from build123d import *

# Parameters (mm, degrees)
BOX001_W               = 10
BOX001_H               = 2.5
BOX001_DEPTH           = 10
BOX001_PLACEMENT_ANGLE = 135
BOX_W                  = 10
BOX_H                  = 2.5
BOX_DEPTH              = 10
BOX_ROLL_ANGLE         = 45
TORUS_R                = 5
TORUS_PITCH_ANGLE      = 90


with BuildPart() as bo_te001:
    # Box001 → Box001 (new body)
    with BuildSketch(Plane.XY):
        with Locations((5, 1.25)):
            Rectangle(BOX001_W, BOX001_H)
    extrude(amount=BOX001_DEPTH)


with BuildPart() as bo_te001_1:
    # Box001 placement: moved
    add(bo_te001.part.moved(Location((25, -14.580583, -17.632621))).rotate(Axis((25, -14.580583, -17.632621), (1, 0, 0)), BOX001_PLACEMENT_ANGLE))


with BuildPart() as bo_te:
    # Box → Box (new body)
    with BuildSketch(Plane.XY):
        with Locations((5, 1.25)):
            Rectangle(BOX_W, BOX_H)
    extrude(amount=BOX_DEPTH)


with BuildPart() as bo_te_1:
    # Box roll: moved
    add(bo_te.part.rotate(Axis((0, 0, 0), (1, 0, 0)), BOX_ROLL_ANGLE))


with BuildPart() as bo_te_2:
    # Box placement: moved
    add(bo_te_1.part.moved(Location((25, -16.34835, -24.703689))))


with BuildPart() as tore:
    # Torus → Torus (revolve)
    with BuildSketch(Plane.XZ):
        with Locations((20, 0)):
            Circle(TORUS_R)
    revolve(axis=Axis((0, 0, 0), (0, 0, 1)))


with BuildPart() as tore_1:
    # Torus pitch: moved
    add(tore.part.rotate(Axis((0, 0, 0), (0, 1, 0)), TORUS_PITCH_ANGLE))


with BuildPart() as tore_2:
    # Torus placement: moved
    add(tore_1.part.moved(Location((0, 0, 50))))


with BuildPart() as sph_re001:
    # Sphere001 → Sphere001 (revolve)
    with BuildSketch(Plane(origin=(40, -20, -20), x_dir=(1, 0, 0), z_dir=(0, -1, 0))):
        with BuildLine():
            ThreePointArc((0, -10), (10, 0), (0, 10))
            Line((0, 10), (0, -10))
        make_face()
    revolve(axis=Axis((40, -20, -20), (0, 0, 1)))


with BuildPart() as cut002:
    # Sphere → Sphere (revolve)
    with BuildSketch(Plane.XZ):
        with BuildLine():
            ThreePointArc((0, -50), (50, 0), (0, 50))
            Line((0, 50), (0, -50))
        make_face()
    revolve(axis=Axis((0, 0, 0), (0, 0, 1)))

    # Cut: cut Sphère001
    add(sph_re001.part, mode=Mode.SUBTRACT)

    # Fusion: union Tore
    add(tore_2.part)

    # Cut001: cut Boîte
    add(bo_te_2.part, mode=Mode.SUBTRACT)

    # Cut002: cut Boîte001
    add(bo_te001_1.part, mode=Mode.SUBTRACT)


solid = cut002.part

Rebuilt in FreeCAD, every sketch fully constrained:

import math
import FreeCAD as App
import Part
import Sketcher
from FreeCAD import Vector
Q = App.Units.Quantity


def add_polygon(sketch, points):
    """Adds a closed chain of lines whose ends are joined by coincident constraints."""
    first, n = sketch.GeometryCount, len(points)
    for a, b in zip(points, points[1:] + points[:1]):
        sketch.addGeometry(Part.LineSegment(App.Vector(*a, 0), App.Vector(*b, 0)), False)
    for i in range(n):
        sketch.addConstraint(Sketcher.Constraint("Coincident", first + i, 2, first + (i + 1) % n, 1))

doc = App.newDocument("Part")
body = doc.addObject("PartDesign::Body", "Body")

# Sketch on XY plane
sketch1 = body.newObject("Sketcher::SketchObject", "Sketch")
sketch1.AttachmentSupport = (doc.getObject("XY_Plane"), [""])
sketch1.MapMode = "FlatFace"
add_polygon(sketch1, [(0, 2.5), (0, 0), (10, 0), (10, 2.5)])  # lines 0-3
sketch1.addConstraint([
    Sketcher.Constraint("Vertical", 0),
    Sketcher.Constraint("Horizontal", 1),
    Sketcher.Constraint("Vertical", 2),
    Sketcher.Constraint("Horizontal", 3),
    Sketcher.Constraint("Coincident", 0, 2, -1, 1),
    Sketcher.Constraint("DistanceX", 1, 1, 1, 2, Q("10 mm")),
    Sketcher.Constraint("DistanceY", 0, 2, 0, 1, Q("2.5 mm")),
])
pad1 = body.newObject("PartDesign::Pad", "Pad")
pad1.Profile = sketch1
pad1.Length = 10
body2 = doc.addObject("PartDesign::Body", "Body001")
doc.recompute()

body.Placement = App.Placement(Vector(25, -14.580583, -17.632621), App.Rotation(Vector(1, 0, 0), 135))
boolean = body2.newObject("PartDesign::Boolean", "Boolean")
boolean.Type = "Fuse"
boolean.addObjects([body])
body3 = doc.addObject("PartDesign::Body", "Body002")

# Sketch on XY plane
sketch2 = body3.newObject("Sketcher::SketchObject", "Sketch001")
sketch2.AttachmentSupport = (doc.getObject("XY_Plane002"), [""])
sketch2.MapMode = "FlatFace"
add_polygon(sketch2, [(0, 2.5), (0, 0), (10, 0), (10, 2.5)])  # lines 0-3
sketch2.addConstraint([
    Sketcher.Constraint("Vertical", 0),
    Sketcher.Constraint("Horizontal", 1),
    Sketcher.Constraint("Vertical", 2),
    Sketcher.Constraint("Horizontal", 3),
    Sketcher.Constraint("Coincident", 0, 2, -1, 1),
    Sketcher.Constraint("DistanceX", 1, 1, 1, 2, Q("10 mm")),
    Sketcher.Constraint("DistanceY", 0, 2, 0, 1, Q("2.5 mm")),
])
pad2 = body3.newObject("PartDesign::Pad", "Pad001")
pad2.Profile = sketch2
pad2.Length = 10
body4 = doc.addObject("PartDesign::Body", "Body003")
doc.recompute()

body3.Placement = App.Placement(Vector(0, 0, 0), App.Rotation(Vector(1, 0, 0), 45))
boolean2 = body4.newObject("PartDesign::Boolean", "Boolean001")
boolean2.Type = "Fuse"
boolean2.addObjects([body3])
body5 = doc.addObject("PartDesign::Body", "Body004")
doc.recompute()

body4.Placement = App.Placement(Vector(25, -16.34835, -24.703689), App.Rotation(Vector(0, 0, 1), 0))
boolean3 = body5.newObject("PartDesign::Boolean", "Boolean002")
boolean3.Type = "Fuse"
boolean3.addObjects([body4])
body6 = doc.addObject("PartDesign::Body", "Body005")

# Sketch on XZ plane
sketch3 = body6.newObject("Sketcher::SketchObject", "Sketch002")
sketch3.AttachmentSupport = (doc.getObject("XZ_Plane005"), [""])
sketch3.MapMode = "FlatFace"
sketch3.addGeometry(Part.Circle(Vector(20, 0, 0), Vector(0, 0, 1), 5), False)
sketch3.addConstraint([
    Sketcher.Constraint("PointOnObject", 0, 3, -1),
    Sketcher.Constraint("Diameter", 0, Q("10 mm")),
    Sketcher.Constraint("DistanceX", -1, 1, 0, 3, Q("20 mm")),
])
revolution = body6.newObject("PartDesign::Revolution", "Revolution")
revolution.Profile = sketch3
revolution.ReferenceAxis = (sketch3, ["V_Axis"])
revolution.Angle = 360
body7 = doc.addObject("PartDesign::Body", "Body006")
doc.recompute()

body6.Placement = App.Placement(Vector(0, 0, 0), App.Rotation(Vector(0, 1, 0), 90))
boolean4 = body7.newObject("PartDesign::Boolean", "Boolean003")
boolean4.Type = "Fuse"
boolean4.addObjects([body6])
body8 = doc.addObject("PartDesign::Body", "Body007")
doc.recompute()

body7.Placement = App.Placement(Vector(0, 0, 50), App.Rotation(Vector(0, 0, 1), 0))
boolean5 = body8.newObject("PartDesign::Boolean", "Boolean004")
boolean5.Type = "Fuse"
boolean5.addObjects([body7])
body9 = doc.addObject("PartDesign::Body", "Body008")

# Sketch on XZ plane
sketch4 = body9.newObject("Sketcher::SketchObject", "Sketch003")
sketch4.AttachmentSupport = (doc.getObject("XZ_Plane008"), [""])
sketch4.MapMode = "FlatFace"
sketch4.AttachmentOffset = App.Placement(Vector(0, 0, 20), App.Rotation())
sketch4.addGeometry([
    Part.ArcOfCircle(Part.Circle(Vector(40, -20, 0), Vector(0, 0, 1), 10), math.radians(-90), math.radians(90)),
    Part.LineSegment(Vector(40, -10, 0), Vector(40, -30, 0)),
], False)
sketch4.addGeometry(Part.LineSegment(Vector(40, -30, 0), Vector(40, -10, 0)), True)  # axis
sketch4.addConstraint([
    Sketcher.Constraint("Coincident", 0, 1, 1, 2),
    Sketcher.Constraint("Coincident", 1, 1, 0, 2),
    Sketcher.Constraint("Vertical", 1),
    Sketcher.Constraint("Vertical", 2),
    Sketcher.Constraint("Coincident", 2, 1, 0, 1),
    Sketcher.Constraint("Equal", 1, 2),
    Sketcher.Constraint("Radius", 0, Q("10 mm")),
    Sketcher.Constraint("DistanceX", -1, 1, 0, 3, Q("40 mm")),
    Sketcher.Constraint("DistanceY", 0, 3, -1, 1, Q("20 mm")),
    Sketcher.Constraint("DistanceX", -1, 1, 0, 1, Q("40 mm")),
])
revolution2 = body9.newObject("PartDesign::Revolution", "Revolution001")
revolution2.Profile = sketch4
revolution2.ReferenceAxis = (sketch4, ["Axis0"])
revolution2.Angle = 360
body10 = doc.addObject("PartDesign::Body", "Body009")

# Sketch on XZ plane
sketch5 = body10.newObject("Sketcher::SketchObject", "Sketch004")
sketch5.AttachmentSupport = (doc.getObject("XZ_Plane009"), [""])
sketch5.MapMode = "FlatFace"
sketch5.addGeometry([
    Part.ArcOfCircle(Part.Circle(Vector(0, 0, 0), Vector(0, 0, 1), 50), math.radians(-90), math.radians(90)),
    Part.LineSegment(Vector(0, 50, 0), Vector(0, -50, 0)),
], False)
sketch5.addConstraint([
    Sketcher.Constraint("Coincident", 0, 1, 1, 2),
    Sketcher.Constraint("Coincident", 1, 1, 0, 2),
    Sketcher.Constraint("Vertical", 1),
    Sketcher.Constraint("Coincident", 0, 3, -1, 1),
    Sketcher.Constraint("PointOnObject", 0, 1, -2),
    Sketcher.Constraint("Radius", 0, Q("50 mm")),
])
revolution3 = body10.newObject("PartDesign::Revolution", "Revolution002")
revolution3.Profile = sketch5
revolution3.ReferenceAxis = (sketch5, ["V_Axis"])
revolution3.Angle = 360
doc.recompute()

boolean6 = body10.newObject("PartDesign::Boolean", "Boolean005")
boolean6.Type = "Cut"
boolean6.addObjects([body9])
doc.recompute()

boolean7 = body10.newObject("PartDesign::Boolean", "Boolean006")
boolean7.Type = "Fuse"
boolean7.addObjects([body8])
doc.recompute()

boolean8 = body10.newObject("PartDesign::Boolean", "Boolean007")
boolean8.Type = "Cut"
boolean8.addObjects([body5])
doc.recompute()

boolean9 = body10.newObject("PartDesign::Boolean", "Boolean008")
boolean9.Type = "Cut"
boolean9.addObjects([body2])

doc.recompute()
